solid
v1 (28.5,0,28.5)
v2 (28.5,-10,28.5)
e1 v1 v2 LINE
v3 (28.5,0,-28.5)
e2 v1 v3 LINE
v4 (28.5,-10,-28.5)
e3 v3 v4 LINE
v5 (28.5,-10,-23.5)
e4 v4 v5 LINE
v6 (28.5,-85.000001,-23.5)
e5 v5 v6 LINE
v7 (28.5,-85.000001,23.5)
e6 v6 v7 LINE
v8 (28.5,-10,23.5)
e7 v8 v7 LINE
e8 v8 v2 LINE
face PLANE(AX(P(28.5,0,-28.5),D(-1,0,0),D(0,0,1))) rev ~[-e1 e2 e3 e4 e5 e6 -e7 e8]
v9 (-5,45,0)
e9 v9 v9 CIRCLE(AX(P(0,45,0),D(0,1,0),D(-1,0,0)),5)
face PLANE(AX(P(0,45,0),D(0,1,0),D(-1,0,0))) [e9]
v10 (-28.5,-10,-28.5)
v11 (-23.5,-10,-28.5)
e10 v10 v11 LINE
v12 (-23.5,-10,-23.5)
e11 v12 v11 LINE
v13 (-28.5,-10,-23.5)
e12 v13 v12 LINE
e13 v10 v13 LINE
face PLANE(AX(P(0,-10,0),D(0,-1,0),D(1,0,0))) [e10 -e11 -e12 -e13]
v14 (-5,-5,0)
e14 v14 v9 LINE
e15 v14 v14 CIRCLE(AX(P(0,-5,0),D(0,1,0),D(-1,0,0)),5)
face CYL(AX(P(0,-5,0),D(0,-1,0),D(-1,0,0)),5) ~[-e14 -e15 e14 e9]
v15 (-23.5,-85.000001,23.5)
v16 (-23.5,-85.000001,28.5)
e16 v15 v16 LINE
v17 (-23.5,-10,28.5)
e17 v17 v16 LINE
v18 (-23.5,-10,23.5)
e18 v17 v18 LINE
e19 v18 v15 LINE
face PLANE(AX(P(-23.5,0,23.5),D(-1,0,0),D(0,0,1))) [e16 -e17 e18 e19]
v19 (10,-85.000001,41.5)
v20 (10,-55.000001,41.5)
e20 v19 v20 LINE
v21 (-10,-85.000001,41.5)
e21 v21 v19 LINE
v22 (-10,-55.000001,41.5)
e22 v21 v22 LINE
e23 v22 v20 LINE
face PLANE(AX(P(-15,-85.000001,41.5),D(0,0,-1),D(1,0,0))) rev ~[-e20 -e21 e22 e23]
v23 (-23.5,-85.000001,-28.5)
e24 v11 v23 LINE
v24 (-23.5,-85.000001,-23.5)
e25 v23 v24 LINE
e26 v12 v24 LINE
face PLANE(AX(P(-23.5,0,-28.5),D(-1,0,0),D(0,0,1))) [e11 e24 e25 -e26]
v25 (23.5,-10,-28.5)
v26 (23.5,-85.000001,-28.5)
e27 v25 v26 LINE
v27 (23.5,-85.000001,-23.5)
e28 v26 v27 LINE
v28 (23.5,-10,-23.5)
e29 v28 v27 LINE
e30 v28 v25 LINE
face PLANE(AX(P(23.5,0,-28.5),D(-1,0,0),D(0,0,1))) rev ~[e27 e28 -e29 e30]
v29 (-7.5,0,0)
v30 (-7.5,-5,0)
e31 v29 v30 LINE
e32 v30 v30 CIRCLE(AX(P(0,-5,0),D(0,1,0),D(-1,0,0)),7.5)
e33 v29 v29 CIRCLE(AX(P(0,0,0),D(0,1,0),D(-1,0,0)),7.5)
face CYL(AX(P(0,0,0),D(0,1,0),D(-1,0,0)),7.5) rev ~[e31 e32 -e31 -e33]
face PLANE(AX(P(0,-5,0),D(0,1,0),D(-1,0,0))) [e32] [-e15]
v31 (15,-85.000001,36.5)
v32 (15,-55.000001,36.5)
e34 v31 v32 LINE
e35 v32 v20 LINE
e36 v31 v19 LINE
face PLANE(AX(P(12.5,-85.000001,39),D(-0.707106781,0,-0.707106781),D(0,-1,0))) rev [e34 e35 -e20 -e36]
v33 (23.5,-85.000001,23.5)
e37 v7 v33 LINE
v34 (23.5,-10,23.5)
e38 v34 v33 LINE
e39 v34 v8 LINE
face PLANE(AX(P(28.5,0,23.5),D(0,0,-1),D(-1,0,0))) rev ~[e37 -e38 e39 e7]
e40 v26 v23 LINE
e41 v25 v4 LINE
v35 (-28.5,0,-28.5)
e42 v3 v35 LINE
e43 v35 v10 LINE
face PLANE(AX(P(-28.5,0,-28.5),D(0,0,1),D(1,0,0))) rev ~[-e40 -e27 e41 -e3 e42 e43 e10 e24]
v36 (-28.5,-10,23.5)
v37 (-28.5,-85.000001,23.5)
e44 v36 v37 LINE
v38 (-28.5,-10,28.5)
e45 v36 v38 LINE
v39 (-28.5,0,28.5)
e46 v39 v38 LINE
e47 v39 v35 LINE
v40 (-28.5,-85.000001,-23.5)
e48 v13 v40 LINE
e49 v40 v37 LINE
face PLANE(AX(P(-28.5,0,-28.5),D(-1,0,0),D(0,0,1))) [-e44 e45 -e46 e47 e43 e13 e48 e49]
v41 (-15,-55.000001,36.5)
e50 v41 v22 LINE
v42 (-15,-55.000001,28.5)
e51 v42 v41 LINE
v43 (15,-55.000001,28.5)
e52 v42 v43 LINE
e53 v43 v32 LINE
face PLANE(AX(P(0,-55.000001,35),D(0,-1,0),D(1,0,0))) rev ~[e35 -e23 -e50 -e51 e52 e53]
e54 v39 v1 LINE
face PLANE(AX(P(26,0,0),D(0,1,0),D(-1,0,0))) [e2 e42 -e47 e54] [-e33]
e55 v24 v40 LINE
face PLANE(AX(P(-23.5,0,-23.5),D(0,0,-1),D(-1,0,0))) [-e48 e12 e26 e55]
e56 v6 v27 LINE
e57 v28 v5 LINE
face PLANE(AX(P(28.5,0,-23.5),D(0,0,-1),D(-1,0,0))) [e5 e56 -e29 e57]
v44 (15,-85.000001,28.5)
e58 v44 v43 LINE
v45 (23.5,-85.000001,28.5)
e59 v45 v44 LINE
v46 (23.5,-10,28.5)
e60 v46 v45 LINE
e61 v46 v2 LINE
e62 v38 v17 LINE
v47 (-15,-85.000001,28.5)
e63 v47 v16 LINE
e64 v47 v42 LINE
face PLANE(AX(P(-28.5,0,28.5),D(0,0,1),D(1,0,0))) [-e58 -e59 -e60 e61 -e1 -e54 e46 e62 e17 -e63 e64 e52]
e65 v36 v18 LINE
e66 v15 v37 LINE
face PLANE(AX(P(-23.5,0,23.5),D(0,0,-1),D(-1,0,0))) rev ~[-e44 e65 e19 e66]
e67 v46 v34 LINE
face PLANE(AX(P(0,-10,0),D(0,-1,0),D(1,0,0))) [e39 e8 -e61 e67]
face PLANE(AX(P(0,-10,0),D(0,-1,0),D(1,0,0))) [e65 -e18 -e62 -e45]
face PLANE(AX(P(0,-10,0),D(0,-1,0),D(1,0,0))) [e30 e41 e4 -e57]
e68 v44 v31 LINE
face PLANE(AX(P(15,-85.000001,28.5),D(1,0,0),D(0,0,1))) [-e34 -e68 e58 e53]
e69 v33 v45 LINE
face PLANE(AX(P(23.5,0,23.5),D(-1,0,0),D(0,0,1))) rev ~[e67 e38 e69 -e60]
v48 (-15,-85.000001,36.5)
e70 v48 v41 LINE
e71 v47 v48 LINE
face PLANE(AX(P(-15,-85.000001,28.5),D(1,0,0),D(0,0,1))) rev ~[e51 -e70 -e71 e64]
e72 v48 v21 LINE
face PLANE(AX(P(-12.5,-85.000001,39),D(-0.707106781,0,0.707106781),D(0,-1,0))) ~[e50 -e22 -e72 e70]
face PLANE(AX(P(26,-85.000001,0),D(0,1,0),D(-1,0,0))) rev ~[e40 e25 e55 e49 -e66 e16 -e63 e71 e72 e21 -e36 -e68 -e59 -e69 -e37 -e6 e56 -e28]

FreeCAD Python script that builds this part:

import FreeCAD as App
import Part
import Sketcher
Q = App.Units.Quantity


def edges_at(feature, points):
    """Names of the edges that pass closest to the given points."""
    edges = feature.Shape.Edges
    near = lambda p: min(range(len(edges)), key=lambda i: edges[i].distToShape(Part.Vertex(*p))[0])
    return sorted({f"Edge{near(p) + 1}" for p in points})


def add_polygon(sketch, points):
    """Adds a closed chain of lines whose ends are joined by coincident constraints."""
    first, n = sketch.GeometryCount, len(points)
    for a, b in zip(points, points[1:] + points[:1]):
        sketch.addGeometry(Part.LineSegment(App.Vector(*a, 0), App.Vector(*b, 0)), False)
    for i in range(n):
        sketch.addConstraint(Sketcher.Constraint("Coincident", first + i, 2, first + (i + 1) % n, 1))

doc = App.newDocument("Part")
params = doc.addObject("Spreadsheet::Sheet", "Params")
for row, (alias, value) in enumerate([
    ("sketch1_width", "57 mm"),
    ("pad1_length", "10 mm"),
    ("sketch2_width", "5 mm"),
    ("sketch2_width2", "47 mm"),
    ("pad2_length", "85.000001 mm"),
    ("sketch3_width", "30 mm"),
    ("sketch3_height", "13 mm"),
    ("pad3_length", "30 mm"),
    ("chamfer_size", "5 mm"),
    ("sketch4_diameter", "15 mm"),
    ("pocket1_length", "5 mm"),
    ("sketch5_diameter", "10 mm"),
    ("pad4_length", "50 mm"),
], start=1):
    params.set(f"A{row}", alias)
    params.set(f"B{row}", "=" + value)
    params.setAlias(f"B{row}", alias)

body = doc.addObject("PartDesign::Body", "Body")

# Sketch on XZ plane
sketch1 = doc.addObject("Sketcher::SketchObject", "Sketch")
body.addObject(sketch1)
sketch1.AttachmentSupport = (doc.XZ_Plane, [""])
sketch1.MapMode = "FlatFace"
add_polygon(sketch1, [(-28, 28), (-28, -28), (28, -28), (28, 28)])  # lines 0-3
sketch1.addConstraint([
    Sketcher.Constraint("Vertical", 0),
    Sketcher.Constraint("Horizontal", 1),
    Sketcher.Constraint("Vertical", 2),
    Sketcher.Constraint("Horizontal", 3),
    Sketcher.Constraint("Symmetric", 0, 2, 2, 2, -1, 1),
    Sketcher.Constraint("Equal", 3, 0),
    Sketcher.Constraint("DistanceX", 1, 1, 1, 2, Q("57 mm")),
])
sketch1.setExpression("Constraints[10]", "Params.sketch1_width")
pad1 = doc.addObject("PartDesign::Pad", "Pad")
body.addObject(pad1)
pad1.Profile = sketch1
pad1.setExpression("Length", "Params.pad1_length")

# Sketch on XZ plane
sketch2 = doc.addObject("Sketcher::SketchObject", "Sketch001")
body.addObject(sketch2)
sketch2.AttachmentSupport = (doc.XZ_Plane, [""])
sketch2.MapMode = "FlatFace"
add_polygon(sketch2, [(28, 24), (28, -24), (24, -24), (24, -28), (-24, -28), (-24, -24), (-28, -24), (-28, 24), (-24, 24), (-24, 28), (24, 28), (24, 24)])  # lines 0-11
sketch2.addConstraint([
    Sketcher.Constraint("Vertical", 0),
    Sketcher.Constraint("Horizontal", 1),
    Sketcher.Constraint("Vertical", 2),
    Sketcher.Constraint("Horizontal", 3),
    Sketcher.Constraint("Vertical", 4),
    Sketcher.Constraint("Horizontal", 5),
    Sketcher.Constraint("Vertical", 6),
    Sketcher.Constraint("Horizontal", 7),
    Sketcher.Constraint("Vertical", 8),
    Sketcher.Constraint("Horizontal", 9),
    Sketcher.Constraint("Vertical", 10),
    Sketcher.Constraint("Horizontal", 11),
    Sketcher.Constraint("Symmetric", 0, 2, 6, 2, -1, 1),
    Sketcher.Constraint("Symmetric", 2, 2, 8, 2, -1, 1),
    Sketcher.Constraint("Symmetric", 4, 2, 10, 2, -1, 1),
    Sketcher.Constraint("Symmetric", 1, 2, 4, 2, -2),
    Sketcher.Constraint("Equal", 9, 0),
    Sketcher.Constraint("Equal", 11, 2),
    Sketcher.Constraint("DistanceX", 1, 2, 1, 1, Q("5 mm")),
    Sketcher.Constraint("DistanceX", 3, 2, 3, 1, Q("47 mm")),
])
sketch2.setExpression("Constraints[30]", "Params.sketch2_width")
sketch2.setExpression("Constraints[31]", "Params.sketch2_width2")
pad2 = doc.addObject("PartDesign::Pad", "Pad001")
body.addObject(pad2)
pad2.Profile = sketch2
pad2.setExpression("Length", "Params.pad2_length")

# Sketch on XZ plane
sketch3 = doc.addObject("Sketcher::SketchObject", "Sketch002")
body.addObject(sketch3)
sketch3.AttachmentSupport = (doc.XZ_Plane, [""])
sketch3.MapMode = "FlatFace"
sketch3.AttachmentOffset = App.Placement(App.Vector(0, 0, 85.000001), App.Rotation())
add_polygon(sketch3, [(-15, 42), (-15, 28), (15, 28), (15, 42)])  # lines 0-3
sketch3.addConstraint([
    Sketcher.Constraint("Vertical", 0),
    Sketcher.Constraint("Horizontal", 1),
    Sketcher.Constraint("Vertical", 2),
    Sketcher.Constraint("Horizontal", 3),
    Sketcher.Constraint("DistanceX", 1, 1, 1, 2, Q("30 mm")),
    Sketcher.Constraint("DistanceY", 0, 2, 0, 1, Q("13 mm")),
    Sketcher.Constraint("DistanceX", 0, 2, -1, 1, Q("15 mm")),
    Sketcher.Constraint("DistanceY", -1, 1, 0, 2, Q("28.5 mm")),
])
sketch3.setExpression("Constraints[8]", "Params.sketch3_width")
sketch3.setExpression("Constraints[9]", "Params.sketch3_height")
pad3 = doc.addObject("PartDesign::Pad", "Pad002")
body.addObject(pad3)
pad3.Profile = sketch3
pad3.setExpression("Length", "Params.pad3_length")
pad3.Reversed = True
doc.recompute()

chamfer = doc.addObject("PartDesign::Chamfer", "Chamfer")
body.addObject(chamfer)
chamfer.Base = (pad3, edges_at(pad3, [(15, -70, 41.5), (-15, -70, 41.5)]))
chamfer.setExpression("Size", "Params.chamfer_size")

# Sketch on XZ plane
sketch4 = doc.addObject("Sketcher::SketchObject", "Sketch003")
body.addObject(sketch4)
sketch4.AttachmentSupport = (doc.XZ_Plane, [""])
sketch4.MapMode = "FlatFace"
sketch4.addGeometry(Part.Circle(App.Vector(0, 0, 0), App.Vector(0, 0, 1), 8), False)
sketch4.addConstraint([
    Sketcher.Constraint("Coincident", 0, 3, -1, 1),
    Sketcher.Constraint("Diameter", 0, Q("15 mm")),
])
sketch4.setExpression("Constraints[1]", "Params.sketch4_diameter")
pocket1 = doc.addObject("PartDesign::Pocket", "Pocket")
body.addObject(pocket1)
pocket1.Profile = sketch4
pocket1.setExpression("Length", "Params.pocket1_length")
pocket1.Reversed = True

# Sketch on XZ plane
sketch5 = doc.addObject("Sketcher::SketchObject", "Sketch004")
body.addObject(sketch5)
sketch5.AttachmentSupport = (doc.XZ_Plane, [""])
sketch5.MapMode = "FlatFace"
sketch5.AttachmentOffset = App.Placement(App.Vector(0, 0, 5), App.Rotation())
sketch5.addGeometry(Part.Circle(App.Vector(0, 0, 0), App.Vector(0, 0, 1), 5), False)
sketch5.addConstraint([
    Sketcher.Constraint("Coincident", 0, 3, -1, 1),
    Sketcher.Constraint("Diameter", 0, Q("10 mm")),
])
sketch5.setExpression("Constraints[1]", "Params.sketch5_diameter")
pad4 = doc.addObject("PartDesign::Pad", "Pad003")
body.addObject(pad4)
pad4.Profile = sketch5
pad4.setExpression("Length", "Params.pad4_length")
pad4.Reversed = True

doc.recompute()
